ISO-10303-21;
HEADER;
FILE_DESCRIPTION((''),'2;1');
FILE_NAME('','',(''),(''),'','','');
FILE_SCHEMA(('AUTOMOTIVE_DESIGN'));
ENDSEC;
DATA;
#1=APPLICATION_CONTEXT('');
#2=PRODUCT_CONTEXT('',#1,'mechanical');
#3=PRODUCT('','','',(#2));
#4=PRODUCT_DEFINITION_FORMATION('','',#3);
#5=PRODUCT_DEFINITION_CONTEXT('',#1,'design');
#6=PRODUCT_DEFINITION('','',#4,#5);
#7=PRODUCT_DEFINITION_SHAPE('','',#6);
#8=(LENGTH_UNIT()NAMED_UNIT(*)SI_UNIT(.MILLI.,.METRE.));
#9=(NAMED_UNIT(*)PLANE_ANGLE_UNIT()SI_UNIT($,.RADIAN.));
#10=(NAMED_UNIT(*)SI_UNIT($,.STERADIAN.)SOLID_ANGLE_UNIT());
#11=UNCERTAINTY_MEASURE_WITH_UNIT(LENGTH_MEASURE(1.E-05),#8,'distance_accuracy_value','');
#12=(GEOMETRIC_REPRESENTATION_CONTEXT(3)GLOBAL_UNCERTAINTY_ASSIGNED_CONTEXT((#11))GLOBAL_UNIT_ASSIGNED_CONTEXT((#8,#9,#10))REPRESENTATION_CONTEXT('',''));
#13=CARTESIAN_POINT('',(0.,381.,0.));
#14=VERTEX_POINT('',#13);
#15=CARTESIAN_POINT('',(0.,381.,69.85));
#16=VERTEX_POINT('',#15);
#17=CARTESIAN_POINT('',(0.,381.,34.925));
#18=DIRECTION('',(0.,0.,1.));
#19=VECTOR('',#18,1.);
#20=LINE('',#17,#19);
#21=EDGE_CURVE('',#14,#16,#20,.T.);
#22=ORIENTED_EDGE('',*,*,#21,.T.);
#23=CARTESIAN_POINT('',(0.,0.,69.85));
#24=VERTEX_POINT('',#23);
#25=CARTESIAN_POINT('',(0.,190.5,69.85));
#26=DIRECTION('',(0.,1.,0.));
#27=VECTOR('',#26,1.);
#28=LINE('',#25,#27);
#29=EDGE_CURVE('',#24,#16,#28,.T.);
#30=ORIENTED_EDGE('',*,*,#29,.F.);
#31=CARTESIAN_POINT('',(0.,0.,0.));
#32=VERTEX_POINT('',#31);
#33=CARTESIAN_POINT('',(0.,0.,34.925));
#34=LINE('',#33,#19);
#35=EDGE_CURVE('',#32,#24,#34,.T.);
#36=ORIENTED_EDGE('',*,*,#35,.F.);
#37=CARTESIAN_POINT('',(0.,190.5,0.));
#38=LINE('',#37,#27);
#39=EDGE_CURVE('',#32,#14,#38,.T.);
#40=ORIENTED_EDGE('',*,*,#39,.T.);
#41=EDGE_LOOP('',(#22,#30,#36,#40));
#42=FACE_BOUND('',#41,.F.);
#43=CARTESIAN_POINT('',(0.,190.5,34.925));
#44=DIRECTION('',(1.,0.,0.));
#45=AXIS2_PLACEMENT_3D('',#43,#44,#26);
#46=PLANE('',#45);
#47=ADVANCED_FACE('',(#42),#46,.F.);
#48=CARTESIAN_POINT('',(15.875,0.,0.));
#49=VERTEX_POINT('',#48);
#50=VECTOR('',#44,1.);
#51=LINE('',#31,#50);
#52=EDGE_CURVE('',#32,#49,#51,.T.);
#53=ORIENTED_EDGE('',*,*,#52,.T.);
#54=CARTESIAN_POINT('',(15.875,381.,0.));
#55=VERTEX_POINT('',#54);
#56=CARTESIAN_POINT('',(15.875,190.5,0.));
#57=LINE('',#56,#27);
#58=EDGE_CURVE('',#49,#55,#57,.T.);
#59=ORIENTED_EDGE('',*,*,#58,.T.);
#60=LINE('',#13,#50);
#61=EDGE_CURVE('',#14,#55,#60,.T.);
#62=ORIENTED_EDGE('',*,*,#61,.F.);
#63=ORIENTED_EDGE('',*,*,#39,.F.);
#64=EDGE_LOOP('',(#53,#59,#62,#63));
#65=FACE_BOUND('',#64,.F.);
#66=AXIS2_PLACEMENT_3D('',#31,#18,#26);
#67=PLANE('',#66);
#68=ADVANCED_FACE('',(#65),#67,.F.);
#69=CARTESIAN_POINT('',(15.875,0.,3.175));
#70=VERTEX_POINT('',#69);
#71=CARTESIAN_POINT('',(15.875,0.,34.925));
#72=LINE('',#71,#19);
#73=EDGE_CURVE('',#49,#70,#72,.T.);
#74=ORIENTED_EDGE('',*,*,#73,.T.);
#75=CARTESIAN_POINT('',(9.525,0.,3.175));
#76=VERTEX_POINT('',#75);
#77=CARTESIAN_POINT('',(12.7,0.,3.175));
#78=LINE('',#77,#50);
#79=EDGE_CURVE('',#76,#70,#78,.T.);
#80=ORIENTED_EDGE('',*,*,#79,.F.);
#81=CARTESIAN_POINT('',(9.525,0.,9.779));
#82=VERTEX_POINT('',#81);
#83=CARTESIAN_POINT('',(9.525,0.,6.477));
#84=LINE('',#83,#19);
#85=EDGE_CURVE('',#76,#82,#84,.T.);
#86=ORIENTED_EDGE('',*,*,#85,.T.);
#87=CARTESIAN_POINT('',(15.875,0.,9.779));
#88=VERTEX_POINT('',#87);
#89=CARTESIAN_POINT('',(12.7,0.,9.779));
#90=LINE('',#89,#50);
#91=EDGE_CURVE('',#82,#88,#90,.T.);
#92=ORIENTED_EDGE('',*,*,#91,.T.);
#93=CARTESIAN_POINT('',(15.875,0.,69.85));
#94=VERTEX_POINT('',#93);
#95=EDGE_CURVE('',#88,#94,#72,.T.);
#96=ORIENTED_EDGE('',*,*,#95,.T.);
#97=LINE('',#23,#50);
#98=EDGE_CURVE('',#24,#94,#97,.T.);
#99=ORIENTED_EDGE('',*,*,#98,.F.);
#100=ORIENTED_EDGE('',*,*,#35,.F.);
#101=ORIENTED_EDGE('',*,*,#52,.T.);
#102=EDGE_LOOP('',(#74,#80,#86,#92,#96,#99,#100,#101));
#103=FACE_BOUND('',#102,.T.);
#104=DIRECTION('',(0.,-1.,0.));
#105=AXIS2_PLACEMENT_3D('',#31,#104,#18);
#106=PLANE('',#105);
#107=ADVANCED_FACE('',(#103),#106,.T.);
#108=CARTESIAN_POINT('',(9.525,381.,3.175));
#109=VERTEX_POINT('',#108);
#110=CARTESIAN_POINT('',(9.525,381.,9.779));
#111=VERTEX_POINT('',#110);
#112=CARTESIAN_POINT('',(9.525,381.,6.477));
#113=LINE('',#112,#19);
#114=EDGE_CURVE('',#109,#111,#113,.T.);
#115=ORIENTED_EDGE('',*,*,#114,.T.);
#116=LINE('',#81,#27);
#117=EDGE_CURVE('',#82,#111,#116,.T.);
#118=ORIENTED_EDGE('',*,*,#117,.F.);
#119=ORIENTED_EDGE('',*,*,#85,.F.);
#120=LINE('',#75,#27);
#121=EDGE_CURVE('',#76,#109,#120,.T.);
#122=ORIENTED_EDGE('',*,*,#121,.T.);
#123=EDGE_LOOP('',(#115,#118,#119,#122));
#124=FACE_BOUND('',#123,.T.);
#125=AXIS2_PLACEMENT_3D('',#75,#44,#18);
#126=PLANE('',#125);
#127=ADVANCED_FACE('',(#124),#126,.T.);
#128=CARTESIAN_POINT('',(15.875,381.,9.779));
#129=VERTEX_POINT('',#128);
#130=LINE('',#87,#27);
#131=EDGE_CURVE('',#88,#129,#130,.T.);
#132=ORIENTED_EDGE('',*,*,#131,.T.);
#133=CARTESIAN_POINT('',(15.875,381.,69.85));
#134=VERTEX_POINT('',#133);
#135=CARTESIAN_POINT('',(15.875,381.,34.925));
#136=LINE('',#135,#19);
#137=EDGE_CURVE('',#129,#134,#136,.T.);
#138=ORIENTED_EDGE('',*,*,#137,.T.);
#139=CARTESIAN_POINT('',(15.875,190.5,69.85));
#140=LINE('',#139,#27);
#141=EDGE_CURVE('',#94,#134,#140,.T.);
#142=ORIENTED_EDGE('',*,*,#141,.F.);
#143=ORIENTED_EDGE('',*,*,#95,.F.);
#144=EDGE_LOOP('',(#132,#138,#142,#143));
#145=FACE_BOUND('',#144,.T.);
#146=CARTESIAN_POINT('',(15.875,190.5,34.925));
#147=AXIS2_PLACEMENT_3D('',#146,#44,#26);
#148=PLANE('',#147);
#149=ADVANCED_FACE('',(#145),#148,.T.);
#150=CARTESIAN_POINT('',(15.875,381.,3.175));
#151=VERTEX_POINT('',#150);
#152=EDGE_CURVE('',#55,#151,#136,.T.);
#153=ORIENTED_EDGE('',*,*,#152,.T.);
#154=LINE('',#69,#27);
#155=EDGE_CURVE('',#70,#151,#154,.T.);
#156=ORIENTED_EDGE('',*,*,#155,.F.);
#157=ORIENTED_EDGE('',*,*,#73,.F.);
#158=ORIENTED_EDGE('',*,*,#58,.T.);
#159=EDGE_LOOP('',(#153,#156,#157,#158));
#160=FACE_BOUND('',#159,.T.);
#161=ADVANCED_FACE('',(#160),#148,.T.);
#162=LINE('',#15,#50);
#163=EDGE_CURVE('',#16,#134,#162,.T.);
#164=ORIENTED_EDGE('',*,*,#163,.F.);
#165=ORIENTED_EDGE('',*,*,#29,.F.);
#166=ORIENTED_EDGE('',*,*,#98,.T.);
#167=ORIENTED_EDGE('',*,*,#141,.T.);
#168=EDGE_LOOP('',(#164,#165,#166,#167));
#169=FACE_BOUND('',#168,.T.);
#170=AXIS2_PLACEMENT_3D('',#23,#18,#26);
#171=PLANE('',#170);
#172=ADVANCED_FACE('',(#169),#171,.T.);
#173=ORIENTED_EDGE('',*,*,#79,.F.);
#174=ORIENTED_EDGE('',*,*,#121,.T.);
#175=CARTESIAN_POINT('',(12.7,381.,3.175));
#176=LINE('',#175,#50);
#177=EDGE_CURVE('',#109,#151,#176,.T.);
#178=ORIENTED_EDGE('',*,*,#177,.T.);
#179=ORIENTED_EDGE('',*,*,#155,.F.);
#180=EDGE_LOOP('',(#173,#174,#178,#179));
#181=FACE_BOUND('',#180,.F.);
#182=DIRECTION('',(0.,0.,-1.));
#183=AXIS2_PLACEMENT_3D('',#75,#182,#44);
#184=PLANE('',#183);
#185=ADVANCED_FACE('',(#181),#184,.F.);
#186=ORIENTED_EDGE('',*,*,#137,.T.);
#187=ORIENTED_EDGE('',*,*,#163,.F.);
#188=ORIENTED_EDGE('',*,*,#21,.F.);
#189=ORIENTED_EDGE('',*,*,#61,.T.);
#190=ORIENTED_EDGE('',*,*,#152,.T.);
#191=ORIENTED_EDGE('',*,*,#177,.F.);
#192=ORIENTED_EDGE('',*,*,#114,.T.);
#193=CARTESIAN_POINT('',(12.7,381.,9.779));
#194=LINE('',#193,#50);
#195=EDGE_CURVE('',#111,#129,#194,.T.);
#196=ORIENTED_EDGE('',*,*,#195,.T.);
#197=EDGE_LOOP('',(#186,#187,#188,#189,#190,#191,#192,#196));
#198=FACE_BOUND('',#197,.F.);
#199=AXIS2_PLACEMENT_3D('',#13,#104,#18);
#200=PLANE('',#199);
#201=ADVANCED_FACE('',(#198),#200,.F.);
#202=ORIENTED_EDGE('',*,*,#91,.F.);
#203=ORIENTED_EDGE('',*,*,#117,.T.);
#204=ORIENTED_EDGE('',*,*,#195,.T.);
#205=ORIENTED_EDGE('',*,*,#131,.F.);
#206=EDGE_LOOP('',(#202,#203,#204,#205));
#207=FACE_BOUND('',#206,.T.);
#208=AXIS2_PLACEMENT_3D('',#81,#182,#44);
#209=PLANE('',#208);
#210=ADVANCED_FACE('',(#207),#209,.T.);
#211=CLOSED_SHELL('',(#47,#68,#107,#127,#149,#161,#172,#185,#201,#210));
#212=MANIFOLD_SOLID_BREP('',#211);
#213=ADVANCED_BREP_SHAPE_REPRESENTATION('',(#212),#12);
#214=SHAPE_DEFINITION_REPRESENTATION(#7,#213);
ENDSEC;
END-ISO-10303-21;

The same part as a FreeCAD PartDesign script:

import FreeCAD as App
import Part
import Sketcher
Q = App.Units.Quantity

doc = App.newDocument("Part")
body = doc.addObject("PartDesign::Body", "Body")

sketch1 = doc.addObject("Sketcher::SketchObject", "Sketch")
body.addObject(sketch1)
sketch1.AttachmentSupport = (doc.YZ_Plane, [""])
sketch1.MapMode = "FlatFace"
sketch1.addGeometry([
    Part.LineSegment(App.Vector(0, 69.85, 0), App.Vector(0, 0, 0)),
    Part.LineSegment(App.Vector(0, 0, 0), App.Vector(381, 0, 0)),
    Part.LineSegment(App.Vector(381, 0, 0), App.Vector(381, 69.85, 0)),
    Part.LineSegment(App.Vector(381, 69.85, 0), App.Vector(0, 69.85, 0)),
], False)
sketch1.addConstraint([
    Sketcher.Constraint("Coincident", 0, 2, 1, 1),
    Sketcher.Constraint("Coincident", 1, 2, 2, 1),
    Sketcher.Constraint("Coincident", 2, 2, 3, 1),
    Sketcher.Constraint("Coincident", 3, 2, 0, 1),
    Sketcher.Constraint("Vertical", 0),
    Sketcher.Constraint("Horizontal", 1),
    Sketcher.Constraint("Vertical", 2),
    Sketcher.Constraint("Horizontal", 3),
    Sketcher.Constraint("Coincident", 0, 2, -1, 1),
    Sketcher.Constraint("DistanceX", 1, 1, 1, 2, Q("15 in")),
    Sketcher.Constraint("DistanceY", 0, 2, 0, 1, Q("2.75 in")),
])
pad1 = doc.addObject("PartDesign::Pad", "Pad")
body.addObject(pad1)
pad1.Profile = sketch1
pad1.Length = Q("0.625 in")

sketch2 = doc.addObject("Sketcher::SketchObject", "Sketch001")
body.addObject(sketch2)
sketch2.AttachmentSupport = (doc.XZ_Plane, [""])
sketch2.MapMode = "FlatFace"
sketch2.addGeometry([
    Part.LineSegment(App.Vector(9.525, 9.779, 0), App.Vector(9.525, 3.175, 0)),
    Part.LineSegment(App.Vector(9.525, 3.175, 0), App.Vector(15.875, 3.175, 0)),
    Part.LineSegment(App.Vector(15.875, 3.175, 0), App.Vector(15.875, 9.779, 0)),
    Part.LineSegment(App.Vector(15.875, 9.779, 0), App.Vector(9.525, 9.779, 0)),
], False)
sketch2.addConstraint([
    Sketcher.Constraint("Coincident", 0, 2, 1, 1),
    Sketcher.Constraint("Coincident", 1, 2, 2, 1),
    Sketcher.Constraint("Coincident", 2, 2, 3, 1),
    Sketcher.Constraint("Coincident", 3, 2, 0, 1),
    Sketcher.Constraint("Vertical", 0),
    Sketcher.Constraint("Horizontal", 1),
    Sketcher.Constraint("Vertical", 2),
    Sketcher.Constraint("Horizontal", 3),
    Sketcher.Constraint("DistanceX", 1, 1, 1, 2, Q("0.25 in")),
    Sketcher.Constraint("DistanceY", 0, 2, 0, 1, Q("0.26 in")),
    Sketcher.Constraint("DistanceX", -1, 1, 0, 2, Q("0.375 in")),
    Sketcher.Constraint("DistanceY", -1, 1, 0, 2, Q("0.125 in")),
])
pocket1 = doc.addObject("PartDesign::Pocket", "Pocket")
body.addObject(pocket1)
pocket1.Profile = sketch2
pocket1.Type = "ThroughAll"

doc.recompute()
